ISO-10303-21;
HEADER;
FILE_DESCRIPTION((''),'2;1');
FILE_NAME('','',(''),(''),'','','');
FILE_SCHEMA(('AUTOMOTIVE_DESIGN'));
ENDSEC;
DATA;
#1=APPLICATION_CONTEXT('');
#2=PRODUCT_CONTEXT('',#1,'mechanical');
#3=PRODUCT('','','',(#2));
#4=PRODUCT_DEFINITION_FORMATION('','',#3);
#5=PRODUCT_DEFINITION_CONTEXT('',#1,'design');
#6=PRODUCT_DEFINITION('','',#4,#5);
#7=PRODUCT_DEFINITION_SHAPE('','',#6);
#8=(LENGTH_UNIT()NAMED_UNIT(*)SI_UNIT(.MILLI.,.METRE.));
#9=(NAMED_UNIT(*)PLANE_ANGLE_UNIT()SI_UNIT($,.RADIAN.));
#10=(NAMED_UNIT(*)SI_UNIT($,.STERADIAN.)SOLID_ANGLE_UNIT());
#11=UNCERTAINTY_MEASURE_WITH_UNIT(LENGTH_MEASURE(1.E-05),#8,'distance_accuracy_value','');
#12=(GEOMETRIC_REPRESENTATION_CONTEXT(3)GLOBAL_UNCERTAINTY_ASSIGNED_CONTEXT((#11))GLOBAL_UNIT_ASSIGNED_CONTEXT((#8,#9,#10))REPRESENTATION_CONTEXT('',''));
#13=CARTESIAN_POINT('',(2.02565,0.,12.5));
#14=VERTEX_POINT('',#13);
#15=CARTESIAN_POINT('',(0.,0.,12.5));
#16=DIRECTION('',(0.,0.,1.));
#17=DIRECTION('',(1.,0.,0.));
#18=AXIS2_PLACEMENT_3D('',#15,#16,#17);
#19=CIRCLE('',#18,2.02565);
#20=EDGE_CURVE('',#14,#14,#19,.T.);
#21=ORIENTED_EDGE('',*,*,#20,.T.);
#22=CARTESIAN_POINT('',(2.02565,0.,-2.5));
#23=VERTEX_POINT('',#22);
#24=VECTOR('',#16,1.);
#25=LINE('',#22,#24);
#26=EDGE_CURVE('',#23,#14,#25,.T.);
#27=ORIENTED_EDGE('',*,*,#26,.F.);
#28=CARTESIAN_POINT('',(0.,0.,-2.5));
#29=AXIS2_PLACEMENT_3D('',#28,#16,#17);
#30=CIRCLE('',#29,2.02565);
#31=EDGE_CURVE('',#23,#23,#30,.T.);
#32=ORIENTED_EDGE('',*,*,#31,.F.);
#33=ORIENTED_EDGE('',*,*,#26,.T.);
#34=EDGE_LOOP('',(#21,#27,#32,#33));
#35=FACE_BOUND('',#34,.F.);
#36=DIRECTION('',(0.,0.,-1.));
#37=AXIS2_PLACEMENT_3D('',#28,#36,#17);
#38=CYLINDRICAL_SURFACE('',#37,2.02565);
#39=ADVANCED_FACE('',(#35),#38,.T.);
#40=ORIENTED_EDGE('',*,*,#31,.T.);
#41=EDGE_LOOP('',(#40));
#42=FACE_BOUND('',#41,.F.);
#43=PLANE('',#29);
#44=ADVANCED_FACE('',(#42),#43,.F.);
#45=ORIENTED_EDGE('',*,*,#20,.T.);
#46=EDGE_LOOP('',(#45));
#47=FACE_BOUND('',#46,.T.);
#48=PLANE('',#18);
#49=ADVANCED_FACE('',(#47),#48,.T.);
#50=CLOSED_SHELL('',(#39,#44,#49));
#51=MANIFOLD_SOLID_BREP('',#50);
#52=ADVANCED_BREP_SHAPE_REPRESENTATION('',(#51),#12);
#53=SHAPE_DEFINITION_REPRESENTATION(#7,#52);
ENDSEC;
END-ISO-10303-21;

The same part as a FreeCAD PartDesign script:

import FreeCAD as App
import Part
import Sketcher

V = App.Vector

doc = App.newDocument("Part")
body = doc.addObject("PartDesign::Body", "Body")

# Sketch on XY plane
sketch1 = doc.addObject("Sketcher::SketchObject", "Sketch")
body.addObject(sketch1)
sketch1.AttachmentSupport = (doc.XY_Plane, [""])
sketch1.MapMode = "FlatFace"
sketch1.AttachmentOffset = App.Placement(V(0, 0, -2.5), App.Rotation())
sketch1.addGeometry(Part.Circle(V(0, 0, 0), V(0, 0, 1), 2.02565), False)
sketch1.addConstraint(Sketcher.Constraint("Coincident", 0, 3, -1, 1))
sketch1.addConstraint(Sketcher.Constraint("Diameter", 0, 4.0513))
pad1 = doc.addObject("PartDesign::Pad", "Pad")
body.addObject(pad1)
pad1.Profile = sketch1
pad1.Length = 15

doc.recompute()
